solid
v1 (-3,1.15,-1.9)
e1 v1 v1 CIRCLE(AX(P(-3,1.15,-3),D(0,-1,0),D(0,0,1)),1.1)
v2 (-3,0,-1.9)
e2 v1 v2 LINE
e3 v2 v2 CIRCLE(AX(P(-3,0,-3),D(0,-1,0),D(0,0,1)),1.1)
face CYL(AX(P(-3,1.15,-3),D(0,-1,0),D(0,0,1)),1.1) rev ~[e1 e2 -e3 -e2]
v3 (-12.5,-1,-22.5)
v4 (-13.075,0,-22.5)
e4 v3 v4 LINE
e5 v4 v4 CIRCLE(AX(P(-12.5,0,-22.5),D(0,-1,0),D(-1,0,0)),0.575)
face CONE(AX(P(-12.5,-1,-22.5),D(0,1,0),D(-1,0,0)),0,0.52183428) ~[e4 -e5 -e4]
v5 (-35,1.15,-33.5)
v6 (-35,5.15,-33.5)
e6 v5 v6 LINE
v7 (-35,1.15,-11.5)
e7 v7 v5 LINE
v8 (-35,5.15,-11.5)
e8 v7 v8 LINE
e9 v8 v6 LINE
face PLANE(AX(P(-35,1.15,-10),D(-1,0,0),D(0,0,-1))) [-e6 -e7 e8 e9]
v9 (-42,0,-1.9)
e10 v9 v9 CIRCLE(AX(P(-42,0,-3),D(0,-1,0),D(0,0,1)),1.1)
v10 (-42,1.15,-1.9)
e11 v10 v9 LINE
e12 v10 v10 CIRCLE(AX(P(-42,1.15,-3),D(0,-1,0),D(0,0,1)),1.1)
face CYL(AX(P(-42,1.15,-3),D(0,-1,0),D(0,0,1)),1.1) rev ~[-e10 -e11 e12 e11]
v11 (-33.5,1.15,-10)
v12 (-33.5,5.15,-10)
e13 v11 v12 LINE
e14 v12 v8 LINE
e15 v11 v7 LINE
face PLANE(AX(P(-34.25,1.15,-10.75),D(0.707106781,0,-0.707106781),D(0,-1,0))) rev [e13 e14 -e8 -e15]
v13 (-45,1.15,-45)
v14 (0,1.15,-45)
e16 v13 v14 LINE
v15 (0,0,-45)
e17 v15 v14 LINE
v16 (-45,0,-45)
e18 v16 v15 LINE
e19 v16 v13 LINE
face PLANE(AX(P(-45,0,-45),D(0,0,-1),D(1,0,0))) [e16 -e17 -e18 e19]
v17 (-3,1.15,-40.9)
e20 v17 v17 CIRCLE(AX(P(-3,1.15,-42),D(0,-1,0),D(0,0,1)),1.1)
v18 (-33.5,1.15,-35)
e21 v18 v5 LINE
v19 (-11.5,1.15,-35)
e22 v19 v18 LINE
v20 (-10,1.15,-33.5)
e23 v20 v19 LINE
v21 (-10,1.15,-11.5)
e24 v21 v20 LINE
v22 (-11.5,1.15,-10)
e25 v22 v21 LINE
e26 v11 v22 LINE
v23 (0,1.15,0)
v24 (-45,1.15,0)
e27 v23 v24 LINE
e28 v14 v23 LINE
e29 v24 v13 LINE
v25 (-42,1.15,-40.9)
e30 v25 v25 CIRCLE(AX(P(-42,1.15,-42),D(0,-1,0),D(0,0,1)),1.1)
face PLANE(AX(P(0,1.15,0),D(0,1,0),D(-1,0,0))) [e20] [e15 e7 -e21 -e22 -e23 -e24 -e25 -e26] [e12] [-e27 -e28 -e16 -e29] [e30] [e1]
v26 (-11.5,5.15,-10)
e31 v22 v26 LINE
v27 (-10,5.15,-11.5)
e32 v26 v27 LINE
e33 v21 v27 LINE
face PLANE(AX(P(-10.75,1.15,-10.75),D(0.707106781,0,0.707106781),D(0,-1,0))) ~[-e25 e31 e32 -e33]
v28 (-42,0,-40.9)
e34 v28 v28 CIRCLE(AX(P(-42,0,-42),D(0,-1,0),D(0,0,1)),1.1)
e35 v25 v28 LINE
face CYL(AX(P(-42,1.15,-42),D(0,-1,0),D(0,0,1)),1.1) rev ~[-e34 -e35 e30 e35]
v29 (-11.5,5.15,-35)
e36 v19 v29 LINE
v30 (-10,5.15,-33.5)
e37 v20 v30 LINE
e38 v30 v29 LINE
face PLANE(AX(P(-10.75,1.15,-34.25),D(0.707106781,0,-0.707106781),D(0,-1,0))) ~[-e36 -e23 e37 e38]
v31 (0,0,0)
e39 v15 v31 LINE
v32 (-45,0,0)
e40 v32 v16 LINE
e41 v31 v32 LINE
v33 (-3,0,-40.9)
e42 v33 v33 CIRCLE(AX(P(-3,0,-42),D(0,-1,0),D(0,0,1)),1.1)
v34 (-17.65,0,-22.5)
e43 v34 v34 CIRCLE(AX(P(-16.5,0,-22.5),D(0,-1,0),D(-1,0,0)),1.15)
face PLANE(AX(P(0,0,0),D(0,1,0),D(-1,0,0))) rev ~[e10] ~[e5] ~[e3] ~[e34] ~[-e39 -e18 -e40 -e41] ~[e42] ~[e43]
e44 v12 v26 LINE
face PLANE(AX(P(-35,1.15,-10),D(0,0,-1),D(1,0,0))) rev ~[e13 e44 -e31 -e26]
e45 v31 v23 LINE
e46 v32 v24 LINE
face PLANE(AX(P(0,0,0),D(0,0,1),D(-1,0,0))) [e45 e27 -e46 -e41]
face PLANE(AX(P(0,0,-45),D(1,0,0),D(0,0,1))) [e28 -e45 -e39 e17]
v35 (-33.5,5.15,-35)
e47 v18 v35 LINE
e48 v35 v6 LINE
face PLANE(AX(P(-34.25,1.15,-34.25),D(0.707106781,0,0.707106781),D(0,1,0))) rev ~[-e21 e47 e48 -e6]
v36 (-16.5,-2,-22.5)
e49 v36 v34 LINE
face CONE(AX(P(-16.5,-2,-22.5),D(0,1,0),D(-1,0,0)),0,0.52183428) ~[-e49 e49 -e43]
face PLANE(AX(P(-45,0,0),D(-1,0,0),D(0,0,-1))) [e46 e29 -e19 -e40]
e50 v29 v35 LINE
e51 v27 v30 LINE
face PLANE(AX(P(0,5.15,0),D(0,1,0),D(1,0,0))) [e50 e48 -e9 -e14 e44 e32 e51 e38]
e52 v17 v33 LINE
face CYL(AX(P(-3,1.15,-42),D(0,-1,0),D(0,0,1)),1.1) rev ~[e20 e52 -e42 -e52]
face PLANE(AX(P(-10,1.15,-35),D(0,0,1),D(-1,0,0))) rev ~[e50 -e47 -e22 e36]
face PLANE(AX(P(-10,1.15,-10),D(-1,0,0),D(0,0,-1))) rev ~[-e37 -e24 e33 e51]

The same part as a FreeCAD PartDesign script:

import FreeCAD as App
import Part
import Sketcher
from FreeCAD import Vector


def edges_at(feature, points):
    """Names of the edges that pass closest to the given points."""
    edges = feature.Shape.Edges
    near = lambda p: min(range(len(edges)), key=lambda i: edges[i].distToShape(Part.Vertex(*p))[0])
    return sorted({f"Edge{near(p) + 1}" for p in points})


def add_polygon(sketch, points):
    """Adds a closed chain of lines whose ends are joined by coincident constraints."""
    first, n = sketch.GeometryCount, len(points)
    for a, b in zip(points, points[1:] + points[:1]):
        sketch.addGeometry(Part.LineSegment(App.Vector(*a, 0), App.Vector(*b, 0)), False)
    for i in range(n):
        sketch.addConstraint(Sketcher.Constraint("Coincident", first + i, 2, first + (i + 1) % n, 1))

doc = App.newDocument("Part")
params = doc.addObject("Spreadsheet::Sheet", "Params")
for row, (alias, value) in enumerate([
    ("sketch1_width", "45 mm"),
    ("pad1_length", "1.15 mm"),
    ("sketch2_diameter", "2.2 mm"),
    ("hole_diameter", "2.2 mm"),
    ("sketch3_width", "25 mm"),
    ("pad2_length", "4 mm"),
    ("chamfer_size", "1.5 mm"),
    ("sketch4_height", "2 mm"),
    ("sketch4_width", "1.15 mm"),
    ("revolution_angle", "360 deg"),
    ("sketch5_height", "1 mm"),
    ("revolution2_angle", "360 deg"),
], start=1):
    params.set(f"A{row}", alias)
    params.set(f"B{row}", "=" + value)
    params.setAlias(f"B{row}", alias)

body = doc.addObject("PartDesign::Body", "Body")

sketch1 = body.newObject("Sketcher::SketchObject", "Sketch")
sketch1.AttachmentSupport = (doc.getObject("XZ_Plane"), [""])
sketch1.MapMode = "FlatFace"
add_polygon(sketch1, [(-45, 0), (0, 0), (0, -45), (-45, -45)])
sketch1.addConstraint(Sketcher.Constraint("Horizontal", 0))
sketch1.addConstraint(Sketcher.Constraint("Vertical", 1))
sketch1.addConstraint(Sketcher.Constraint("Horizontal", 2))
sketch1.addConstraint(Sketcher.Constraint("Vertical", 3))
sketch1.addConstraint(Sketcher.Constraint("Coincident", 0, 2, -1, 1))
sketch1.addConstraint(Sketcher.Constraint("Equal", 2, 1))
sketch1.addConstraint(Sketcher.Constraint("DistanceX", 0, 1, 0, 2, 45.0))
sketch1.setExpression("Constraints[10]", "Params.sketch1_width")
pad1 = body.newObject("PartDesign::Pad", "Pad")
pad1.Profile = sketch1
pad1.setExpression("Length", "Params.pad1_length")
pad1.Reversed = True

sketch2 = body.newObject("Sketcher::SketchObject", "Sketch001")
sketch2.AttachmentSupport = (doc.getObject("XZ_Plane"), [""])
sketch2.MapMode = "FlatFace"
sketch2.AttachmentOffset = App.Placement(Vector(0, 0, -1.15), App.Rotation())
sketch2.addGeometry(Part.Circle(Vector(-42, -3, 0), Vector(0, 0, 1), 1.1), False)
sketch2.addGeometry(Part.Circle(Vector(-42, -42, 0), Vector(0, 0, 1), 1.1), False)
sketch2.addGeometry(Part.Circle(Vector(-3, -42, 0), Vector(0, 0, 1), 1.1), False)
sketch2.addGeometry(Part.Circle(Vector(-3, -3, 0), Vector(0, 0, 1), 1.1), False)
sketch2.addConstraint(Sketcher.Constraint("Equal", 0, 1))
sketch2.addConstraint(Sketcher.Constraint("Equal", 1, 2))
sketch2.addConstraint(Sketcher.Constraint("Equal", 2, 3))
sketch2.addConstraint(Sketcher.Constraint("Horizontal", 1, 3, 2, 3))
sketch2.addConstraint(Sketcher.Constraint("Horizontal", 0, 3, 3, 3))
sketch2.addConstraint(Sketcher.Constraint("Vertical", 0, 3, 1, 3))
sketch2.addConstraint(Sketcher.Constraint("Vertical", 2, 3, 3, 3))
sketch2.addConstraint(Sketcher.Constraint("Diameter", 0, 2.2))
sketch2.addConstraint(Sketcher.Constraint("DistanceX", 0, 3, -1, 1, 42.0))
sketch2.addConstraint(Sketcher.Constraint("DistanceY", 0, 3, -1, 1, 3.0))
sketch2.addConstraint(Sketcher.Constraint("DistanceY", 1, 3, -1, 1, 42.0))
sketch2.addConstraint(Sketcher.Constraint("DistanceX", 2, 3, -1, 1, 3.0))
sketch2.setExpression("Constraints[7]", "Params.sketch2_diameter")
doc.recompute()
hole = body.newObject("PartDesign::Hole", "Hole")
hole.Profile = sketch2
hole.ThreadType = "None"
hole.setExpression("Diameter", "Params.hole_diameter")
hole.DepthType = "ThroughAll"
hole.Reversed = True

sketch3 = body.newObject("Sketcher::SketchObject", "Sketch002")
sketch3.AttachmentSupport = (doc.getObject("XZ_Plane"), [""])
sketch3.MapMode = "FlatFace"
sketch3.AttachmentOffset = App.Placement(Vector(0, 0, -1.15), App.Rotation())
add_polygon(sketch3, [(-35, -35), (-35, -10), (-10, -10), (-10, -35)])
sketch3.addConstraint(Sketcher.Constraint("Vertical", 0))
sketch3.addConstraint(Sketcher.Constraint("Horizontal", 1))
sketch3.addConstraint(Sketcher.Constraint("Vertical", 2))
sketch3.addConstraint(Sketcher.Constraint("Horizontal", 3))
sketch3.addConstraint(Sketcher.Constraint("Equal", 3, 0))
sketch3.addConstraint(Sketcher.Constraint("DistanceX", 1, 1, 1, 2, 25.0))
sketch3.addConstraint(Sketcher.Constraint("DistanceY", 0, 2, -1, 1, 10.0))
sketch3.addConstraint(Sketcher.Constraint("DistanceX", 1, 2, -1, 1, 10.0))
sketch3.setExpression("Constraints[9]", "Params.sketch3_width")
pad2 = body.newObject("PartDesign::Pad", "Pad001")
pad2.Profile = sketch3
pad2.setExpression("Length", "Params.pad2_length")
pad2.Reversed = True
doc.recompute()

chamfer = body.newObject("PartDesign::Chamfer", "Chamfer")
chamfer.Base = (pad2, edges_at(pad2, [
    (-10, 3.15, -35),
    (-35, 3.15, -35),
    (-10, 3.15, -10),
    (-35, 3.15, -10),
]))
chamfer.setExpression("Size", "Params.chamfer_size")

sketch4 = body.newObject("Sketcher::SketchObject", "Sketch003")
sketch4.AttachmentSupport = (doc.getObject("XY_Plane"), [""])
sketch4.MapMode = "FlatFace"
sketch4.AttachmentOffset = App.Placement(Vector(0, 0, -22.5), App.Rotation())
add_polygon(sketch4, [(-16.5, -2), (-16.5, 0), (-17.65, 0)])
sketch4.addGeometry(Part.LineSegment(Vector(-16.5, 0, 0), Vector(-16.5, -2, 0)), True)
sketch4.addConstraint(Sketcher.Constraint("Vertical", 0))
sketch4.addConstraint(Sketcher.Constraint("Horizontal", 1))
sketch4.addConstraint(Sketcher.Constraint("Vertical", 3))
sketch4.addConstraint(Sketcher.Constraint("Coincident", 3, 1, 0, 2))
sketch4.addConstraint(Sketcher.Constraint("PointOnObject", 0, 2, -1))
sketch4.addConstraint(Sketcher.Constraint("Equal", 0, 3))
sketch4.addConstraint(Sketcher.Constraint("DistanceY", 0, 1, 0, 2, 2.0))
sketch4.addConstraint(Sketcher.Constraint("DistanceX", 1, 2, 1, 1, 1.15))
sketch4.addConstraint(Sketcher.Constraint("DistanceX", 0, 2, -1, 1, 16.5))
sketch4.setExpression("Constraints[9]", "Params.sketch4_height")
sketch4.setExpression("Constraints[10]", "Params.sketch4_width")
revolution = body.newObject("PartDesign::Revolution", "Revolution")
revolution.Profile = sketch4
revolution.ReferenceAxis = (sketch4, ["Axis0"])
revolution.setExpression("Angle", "Params.revolution_angle")

sketch5 = body.newObject("Sketcher::SketchObject", "Sketch004")
sketch5.AttachmentSupport = (doc.getObject("XY_Plane"), [""])
sketch5.MapMode = "FlatFace"
sketch5.AttachmentOffset = App.Placement(Vector(0, 0, -22.5), App.Rotation())
add_polygon(sketch5, [(-12.5, -1), (-12.5, 0), (-13.075, 0)])
sketch5.addGeometry(Part.LineSegment(Vector(-12.5, 0, 0), Vector(-12.5, -1, 0)), True)
sketch5.addConstraint(Sketcher.Constraint("Vertical", 0))
sketch5.addConstraint(Sketcher.Constraint("Horizontal", 1))
sketch5.addConstraint(Sketcher.Constraint("Vertical", 3))
sketch5.addConstraint(Sketcher.Constraint("Coincident", 3, 1, 0, 2))
sketch5.addConstraint(Sketcher.Constraint("PointOnObject", 0, 2, -1))
sketch5.addConstraint(Sketcher.Constraint("Equal", 0, 3))
sketch5.addConstraint(Sketcher.Constraint("DistanceY", 0, 1, 0, 2, 1.0))
sketch5.addConstraint(Sketcher.Constraint("DistanceX", 1, 2, 1, 1, 0.575))
sketch5.addConstraint(Sketcher.Constraint("DistanceX", 0, 2, -1, 1, 12.5))
sketch5.setExpression("Constraints[9]", "Params.sketch5_height")
revolution2 = body.newObject("PartDesign::Revolution", "Revolution001")
revolution2.Profile = sketch5
revolution2.ReferenceAxis = (sketch5, ["Axis0"])
revolution2.setExpression("Angle", "Params.revolution2_angle")

doc.recompute()
